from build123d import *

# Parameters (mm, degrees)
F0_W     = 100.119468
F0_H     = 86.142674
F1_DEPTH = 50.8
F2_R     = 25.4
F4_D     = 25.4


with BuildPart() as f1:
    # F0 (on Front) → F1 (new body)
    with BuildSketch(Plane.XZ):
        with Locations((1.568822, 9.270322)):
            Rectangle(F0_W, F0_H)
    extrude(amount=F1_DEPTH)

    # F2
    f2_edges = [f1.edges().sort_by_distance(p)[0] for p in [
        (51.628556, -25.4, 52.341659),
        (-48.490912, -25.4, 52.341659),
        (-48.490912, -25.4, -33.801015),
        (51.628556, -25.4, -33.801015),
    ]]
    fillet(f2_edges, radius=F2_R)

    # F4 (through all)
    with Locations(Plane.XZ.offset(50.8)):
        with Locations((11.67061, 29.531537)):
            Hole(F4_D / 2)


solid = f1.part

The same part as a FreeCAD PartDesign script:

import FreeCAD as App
import Part
import Sketcher
from FreeCAD import Vector
Q = App.Units.Quantity


def edges_at(feature, points):
    """Names of the edges that pass closest to the given points."""
    edges = feature.Shape.Edges
    near = lambda p: min(range(len(edges)), key=lambda i: edges[i].distToShape(Part.Vertex(*p))[0])
    return sorted({f"Edge{near(p) + 1}" for p in points})

doc = App.newDocument("Part")
params = doc.addObject("Spreadsheet::Sheet", "Params")
for row, (alias, value) in enumerate([
    ("pad1_length", "2 in"),
    ("fillet_radius", "1 in"),
    ("sketch2_diameter", "1 in"),
    ("hole_diameter", "1 in"),
], start=1):
    params.set(f"A{row}", alias)
    params.set(f"B{row}", "=" + value)
    params.setAlias(f"B{row}", alias)

body = doc.addObject("PartDesign::Body", "Body")

sketch1 = body.newObject("Sketcher::SketchObject", "Sketch")
sketch1.AttachmentSupport = (doc.getObject("XZ_Plane"), [""])
sketch1.MapMode = "FlatFace"
sketch1.addGeometry([
    Part.LineSegment(Vector(-48, 52, 0), Vector(-48, -34, 0)),
    Part.LineSegment(Vector(-48, -34, 0), Vector(52, -34, 0)),
    Part.LineSegment(Vector(52, -34, 0), Vector(52, 52, 0)),
    Part.LineSegment(Vector(52, 52, 0), Vector(-48, 52, 0)),
], False)
sketch1.addConstraint([
    Sketcher.Constraint("Coincident", 0, 2, 1, 1),
    Sketcher.Constraint("Coincident", 1, 2, 2, 1),
    Sketcher.Constraint("Coincident", 2, 2, 3, 1),
    Sketcher.Constraint("Coincident", 3, 2, 0, 1),
    Sketcher.Constraint("Vertical", 0),
    Sketcher.Constraint("Horizontal", 1),
    Sketcher.Constraint("Vertical", 2),
    Sketcher.Constraint("Horizontal", 3),
    Sketcher.Constraint("DistanceX", 1, 1, 1, 2, Q("100.119468 mm")),
    Sketcher.Constraint("DistanceY", 0, 2, 0, 1, Q("86.142674 mm")),
    Sketcher.Constraint("DistanceY", -1, 1, 2, 2, Q("52.341659 mm")),
    Sketcher.Constraint("DistanceX", 0, 2, -1, 1, Q("48.490912 mm")),
])
pad1 = body.newObject("PartDesign::Pad", "Pad")
pad1.Profile = sketch1
pad1.setExpression("Length", "Params.pad1_length")
doc.recompute()

fillet = body.newObject("PartDesign::Fillet", "Fillet")
fillet.Base = (pad1, edges_at(pad1, [
    (51.629, -25.4, 52.342),
    (-48.491, -25.4, 52.342),
    (-48.491, -25.4, -33.801),
    (51.629, -25.4, -33.801),
]))
fillet.setExpression("Radius", "Params.fillet_radius")

sketch2 = body.newObject("Sketcher::SketchObject", "Sketch001")
sketch2.AttachmentSupport = (doc.getObject("XZ_Plane"), [""])
sketch2.MapMode = "FlatFace"
sketch2.AttachmentOffset = App.Placement(Vector(0, 0, 2 * 25.4), App.Rotation())
sketch2.addGeometry(Part.Circle(Vector(12, 30, 0), Vector(0, 0, 1), 13), False)
sketch2.addConstraint([
    Sketcher.Constraint("Diameter", 0, Q("1 in")),
    Sketcher.Constraint("DistanceX", -1, 1, 0, 3, Q("11.67061 mm")),
    Sketcher.Constraint("DistanceY", -1, 1, 0, 3, Q("29.531537 mm")),
])
sketch2.setExpression("Constraints[0]", "Params.sketch2_diameter")
doc.recompute()
hole = body.newObject("PartDesign::Hole", "Hole")
hole.Profile = sketch2
hole.ThreadType = "None"
hole.setExpression("Diameter", "Params.hole_diameter")
hole.DepthType = "ThroughAll"

doc.recompute()
